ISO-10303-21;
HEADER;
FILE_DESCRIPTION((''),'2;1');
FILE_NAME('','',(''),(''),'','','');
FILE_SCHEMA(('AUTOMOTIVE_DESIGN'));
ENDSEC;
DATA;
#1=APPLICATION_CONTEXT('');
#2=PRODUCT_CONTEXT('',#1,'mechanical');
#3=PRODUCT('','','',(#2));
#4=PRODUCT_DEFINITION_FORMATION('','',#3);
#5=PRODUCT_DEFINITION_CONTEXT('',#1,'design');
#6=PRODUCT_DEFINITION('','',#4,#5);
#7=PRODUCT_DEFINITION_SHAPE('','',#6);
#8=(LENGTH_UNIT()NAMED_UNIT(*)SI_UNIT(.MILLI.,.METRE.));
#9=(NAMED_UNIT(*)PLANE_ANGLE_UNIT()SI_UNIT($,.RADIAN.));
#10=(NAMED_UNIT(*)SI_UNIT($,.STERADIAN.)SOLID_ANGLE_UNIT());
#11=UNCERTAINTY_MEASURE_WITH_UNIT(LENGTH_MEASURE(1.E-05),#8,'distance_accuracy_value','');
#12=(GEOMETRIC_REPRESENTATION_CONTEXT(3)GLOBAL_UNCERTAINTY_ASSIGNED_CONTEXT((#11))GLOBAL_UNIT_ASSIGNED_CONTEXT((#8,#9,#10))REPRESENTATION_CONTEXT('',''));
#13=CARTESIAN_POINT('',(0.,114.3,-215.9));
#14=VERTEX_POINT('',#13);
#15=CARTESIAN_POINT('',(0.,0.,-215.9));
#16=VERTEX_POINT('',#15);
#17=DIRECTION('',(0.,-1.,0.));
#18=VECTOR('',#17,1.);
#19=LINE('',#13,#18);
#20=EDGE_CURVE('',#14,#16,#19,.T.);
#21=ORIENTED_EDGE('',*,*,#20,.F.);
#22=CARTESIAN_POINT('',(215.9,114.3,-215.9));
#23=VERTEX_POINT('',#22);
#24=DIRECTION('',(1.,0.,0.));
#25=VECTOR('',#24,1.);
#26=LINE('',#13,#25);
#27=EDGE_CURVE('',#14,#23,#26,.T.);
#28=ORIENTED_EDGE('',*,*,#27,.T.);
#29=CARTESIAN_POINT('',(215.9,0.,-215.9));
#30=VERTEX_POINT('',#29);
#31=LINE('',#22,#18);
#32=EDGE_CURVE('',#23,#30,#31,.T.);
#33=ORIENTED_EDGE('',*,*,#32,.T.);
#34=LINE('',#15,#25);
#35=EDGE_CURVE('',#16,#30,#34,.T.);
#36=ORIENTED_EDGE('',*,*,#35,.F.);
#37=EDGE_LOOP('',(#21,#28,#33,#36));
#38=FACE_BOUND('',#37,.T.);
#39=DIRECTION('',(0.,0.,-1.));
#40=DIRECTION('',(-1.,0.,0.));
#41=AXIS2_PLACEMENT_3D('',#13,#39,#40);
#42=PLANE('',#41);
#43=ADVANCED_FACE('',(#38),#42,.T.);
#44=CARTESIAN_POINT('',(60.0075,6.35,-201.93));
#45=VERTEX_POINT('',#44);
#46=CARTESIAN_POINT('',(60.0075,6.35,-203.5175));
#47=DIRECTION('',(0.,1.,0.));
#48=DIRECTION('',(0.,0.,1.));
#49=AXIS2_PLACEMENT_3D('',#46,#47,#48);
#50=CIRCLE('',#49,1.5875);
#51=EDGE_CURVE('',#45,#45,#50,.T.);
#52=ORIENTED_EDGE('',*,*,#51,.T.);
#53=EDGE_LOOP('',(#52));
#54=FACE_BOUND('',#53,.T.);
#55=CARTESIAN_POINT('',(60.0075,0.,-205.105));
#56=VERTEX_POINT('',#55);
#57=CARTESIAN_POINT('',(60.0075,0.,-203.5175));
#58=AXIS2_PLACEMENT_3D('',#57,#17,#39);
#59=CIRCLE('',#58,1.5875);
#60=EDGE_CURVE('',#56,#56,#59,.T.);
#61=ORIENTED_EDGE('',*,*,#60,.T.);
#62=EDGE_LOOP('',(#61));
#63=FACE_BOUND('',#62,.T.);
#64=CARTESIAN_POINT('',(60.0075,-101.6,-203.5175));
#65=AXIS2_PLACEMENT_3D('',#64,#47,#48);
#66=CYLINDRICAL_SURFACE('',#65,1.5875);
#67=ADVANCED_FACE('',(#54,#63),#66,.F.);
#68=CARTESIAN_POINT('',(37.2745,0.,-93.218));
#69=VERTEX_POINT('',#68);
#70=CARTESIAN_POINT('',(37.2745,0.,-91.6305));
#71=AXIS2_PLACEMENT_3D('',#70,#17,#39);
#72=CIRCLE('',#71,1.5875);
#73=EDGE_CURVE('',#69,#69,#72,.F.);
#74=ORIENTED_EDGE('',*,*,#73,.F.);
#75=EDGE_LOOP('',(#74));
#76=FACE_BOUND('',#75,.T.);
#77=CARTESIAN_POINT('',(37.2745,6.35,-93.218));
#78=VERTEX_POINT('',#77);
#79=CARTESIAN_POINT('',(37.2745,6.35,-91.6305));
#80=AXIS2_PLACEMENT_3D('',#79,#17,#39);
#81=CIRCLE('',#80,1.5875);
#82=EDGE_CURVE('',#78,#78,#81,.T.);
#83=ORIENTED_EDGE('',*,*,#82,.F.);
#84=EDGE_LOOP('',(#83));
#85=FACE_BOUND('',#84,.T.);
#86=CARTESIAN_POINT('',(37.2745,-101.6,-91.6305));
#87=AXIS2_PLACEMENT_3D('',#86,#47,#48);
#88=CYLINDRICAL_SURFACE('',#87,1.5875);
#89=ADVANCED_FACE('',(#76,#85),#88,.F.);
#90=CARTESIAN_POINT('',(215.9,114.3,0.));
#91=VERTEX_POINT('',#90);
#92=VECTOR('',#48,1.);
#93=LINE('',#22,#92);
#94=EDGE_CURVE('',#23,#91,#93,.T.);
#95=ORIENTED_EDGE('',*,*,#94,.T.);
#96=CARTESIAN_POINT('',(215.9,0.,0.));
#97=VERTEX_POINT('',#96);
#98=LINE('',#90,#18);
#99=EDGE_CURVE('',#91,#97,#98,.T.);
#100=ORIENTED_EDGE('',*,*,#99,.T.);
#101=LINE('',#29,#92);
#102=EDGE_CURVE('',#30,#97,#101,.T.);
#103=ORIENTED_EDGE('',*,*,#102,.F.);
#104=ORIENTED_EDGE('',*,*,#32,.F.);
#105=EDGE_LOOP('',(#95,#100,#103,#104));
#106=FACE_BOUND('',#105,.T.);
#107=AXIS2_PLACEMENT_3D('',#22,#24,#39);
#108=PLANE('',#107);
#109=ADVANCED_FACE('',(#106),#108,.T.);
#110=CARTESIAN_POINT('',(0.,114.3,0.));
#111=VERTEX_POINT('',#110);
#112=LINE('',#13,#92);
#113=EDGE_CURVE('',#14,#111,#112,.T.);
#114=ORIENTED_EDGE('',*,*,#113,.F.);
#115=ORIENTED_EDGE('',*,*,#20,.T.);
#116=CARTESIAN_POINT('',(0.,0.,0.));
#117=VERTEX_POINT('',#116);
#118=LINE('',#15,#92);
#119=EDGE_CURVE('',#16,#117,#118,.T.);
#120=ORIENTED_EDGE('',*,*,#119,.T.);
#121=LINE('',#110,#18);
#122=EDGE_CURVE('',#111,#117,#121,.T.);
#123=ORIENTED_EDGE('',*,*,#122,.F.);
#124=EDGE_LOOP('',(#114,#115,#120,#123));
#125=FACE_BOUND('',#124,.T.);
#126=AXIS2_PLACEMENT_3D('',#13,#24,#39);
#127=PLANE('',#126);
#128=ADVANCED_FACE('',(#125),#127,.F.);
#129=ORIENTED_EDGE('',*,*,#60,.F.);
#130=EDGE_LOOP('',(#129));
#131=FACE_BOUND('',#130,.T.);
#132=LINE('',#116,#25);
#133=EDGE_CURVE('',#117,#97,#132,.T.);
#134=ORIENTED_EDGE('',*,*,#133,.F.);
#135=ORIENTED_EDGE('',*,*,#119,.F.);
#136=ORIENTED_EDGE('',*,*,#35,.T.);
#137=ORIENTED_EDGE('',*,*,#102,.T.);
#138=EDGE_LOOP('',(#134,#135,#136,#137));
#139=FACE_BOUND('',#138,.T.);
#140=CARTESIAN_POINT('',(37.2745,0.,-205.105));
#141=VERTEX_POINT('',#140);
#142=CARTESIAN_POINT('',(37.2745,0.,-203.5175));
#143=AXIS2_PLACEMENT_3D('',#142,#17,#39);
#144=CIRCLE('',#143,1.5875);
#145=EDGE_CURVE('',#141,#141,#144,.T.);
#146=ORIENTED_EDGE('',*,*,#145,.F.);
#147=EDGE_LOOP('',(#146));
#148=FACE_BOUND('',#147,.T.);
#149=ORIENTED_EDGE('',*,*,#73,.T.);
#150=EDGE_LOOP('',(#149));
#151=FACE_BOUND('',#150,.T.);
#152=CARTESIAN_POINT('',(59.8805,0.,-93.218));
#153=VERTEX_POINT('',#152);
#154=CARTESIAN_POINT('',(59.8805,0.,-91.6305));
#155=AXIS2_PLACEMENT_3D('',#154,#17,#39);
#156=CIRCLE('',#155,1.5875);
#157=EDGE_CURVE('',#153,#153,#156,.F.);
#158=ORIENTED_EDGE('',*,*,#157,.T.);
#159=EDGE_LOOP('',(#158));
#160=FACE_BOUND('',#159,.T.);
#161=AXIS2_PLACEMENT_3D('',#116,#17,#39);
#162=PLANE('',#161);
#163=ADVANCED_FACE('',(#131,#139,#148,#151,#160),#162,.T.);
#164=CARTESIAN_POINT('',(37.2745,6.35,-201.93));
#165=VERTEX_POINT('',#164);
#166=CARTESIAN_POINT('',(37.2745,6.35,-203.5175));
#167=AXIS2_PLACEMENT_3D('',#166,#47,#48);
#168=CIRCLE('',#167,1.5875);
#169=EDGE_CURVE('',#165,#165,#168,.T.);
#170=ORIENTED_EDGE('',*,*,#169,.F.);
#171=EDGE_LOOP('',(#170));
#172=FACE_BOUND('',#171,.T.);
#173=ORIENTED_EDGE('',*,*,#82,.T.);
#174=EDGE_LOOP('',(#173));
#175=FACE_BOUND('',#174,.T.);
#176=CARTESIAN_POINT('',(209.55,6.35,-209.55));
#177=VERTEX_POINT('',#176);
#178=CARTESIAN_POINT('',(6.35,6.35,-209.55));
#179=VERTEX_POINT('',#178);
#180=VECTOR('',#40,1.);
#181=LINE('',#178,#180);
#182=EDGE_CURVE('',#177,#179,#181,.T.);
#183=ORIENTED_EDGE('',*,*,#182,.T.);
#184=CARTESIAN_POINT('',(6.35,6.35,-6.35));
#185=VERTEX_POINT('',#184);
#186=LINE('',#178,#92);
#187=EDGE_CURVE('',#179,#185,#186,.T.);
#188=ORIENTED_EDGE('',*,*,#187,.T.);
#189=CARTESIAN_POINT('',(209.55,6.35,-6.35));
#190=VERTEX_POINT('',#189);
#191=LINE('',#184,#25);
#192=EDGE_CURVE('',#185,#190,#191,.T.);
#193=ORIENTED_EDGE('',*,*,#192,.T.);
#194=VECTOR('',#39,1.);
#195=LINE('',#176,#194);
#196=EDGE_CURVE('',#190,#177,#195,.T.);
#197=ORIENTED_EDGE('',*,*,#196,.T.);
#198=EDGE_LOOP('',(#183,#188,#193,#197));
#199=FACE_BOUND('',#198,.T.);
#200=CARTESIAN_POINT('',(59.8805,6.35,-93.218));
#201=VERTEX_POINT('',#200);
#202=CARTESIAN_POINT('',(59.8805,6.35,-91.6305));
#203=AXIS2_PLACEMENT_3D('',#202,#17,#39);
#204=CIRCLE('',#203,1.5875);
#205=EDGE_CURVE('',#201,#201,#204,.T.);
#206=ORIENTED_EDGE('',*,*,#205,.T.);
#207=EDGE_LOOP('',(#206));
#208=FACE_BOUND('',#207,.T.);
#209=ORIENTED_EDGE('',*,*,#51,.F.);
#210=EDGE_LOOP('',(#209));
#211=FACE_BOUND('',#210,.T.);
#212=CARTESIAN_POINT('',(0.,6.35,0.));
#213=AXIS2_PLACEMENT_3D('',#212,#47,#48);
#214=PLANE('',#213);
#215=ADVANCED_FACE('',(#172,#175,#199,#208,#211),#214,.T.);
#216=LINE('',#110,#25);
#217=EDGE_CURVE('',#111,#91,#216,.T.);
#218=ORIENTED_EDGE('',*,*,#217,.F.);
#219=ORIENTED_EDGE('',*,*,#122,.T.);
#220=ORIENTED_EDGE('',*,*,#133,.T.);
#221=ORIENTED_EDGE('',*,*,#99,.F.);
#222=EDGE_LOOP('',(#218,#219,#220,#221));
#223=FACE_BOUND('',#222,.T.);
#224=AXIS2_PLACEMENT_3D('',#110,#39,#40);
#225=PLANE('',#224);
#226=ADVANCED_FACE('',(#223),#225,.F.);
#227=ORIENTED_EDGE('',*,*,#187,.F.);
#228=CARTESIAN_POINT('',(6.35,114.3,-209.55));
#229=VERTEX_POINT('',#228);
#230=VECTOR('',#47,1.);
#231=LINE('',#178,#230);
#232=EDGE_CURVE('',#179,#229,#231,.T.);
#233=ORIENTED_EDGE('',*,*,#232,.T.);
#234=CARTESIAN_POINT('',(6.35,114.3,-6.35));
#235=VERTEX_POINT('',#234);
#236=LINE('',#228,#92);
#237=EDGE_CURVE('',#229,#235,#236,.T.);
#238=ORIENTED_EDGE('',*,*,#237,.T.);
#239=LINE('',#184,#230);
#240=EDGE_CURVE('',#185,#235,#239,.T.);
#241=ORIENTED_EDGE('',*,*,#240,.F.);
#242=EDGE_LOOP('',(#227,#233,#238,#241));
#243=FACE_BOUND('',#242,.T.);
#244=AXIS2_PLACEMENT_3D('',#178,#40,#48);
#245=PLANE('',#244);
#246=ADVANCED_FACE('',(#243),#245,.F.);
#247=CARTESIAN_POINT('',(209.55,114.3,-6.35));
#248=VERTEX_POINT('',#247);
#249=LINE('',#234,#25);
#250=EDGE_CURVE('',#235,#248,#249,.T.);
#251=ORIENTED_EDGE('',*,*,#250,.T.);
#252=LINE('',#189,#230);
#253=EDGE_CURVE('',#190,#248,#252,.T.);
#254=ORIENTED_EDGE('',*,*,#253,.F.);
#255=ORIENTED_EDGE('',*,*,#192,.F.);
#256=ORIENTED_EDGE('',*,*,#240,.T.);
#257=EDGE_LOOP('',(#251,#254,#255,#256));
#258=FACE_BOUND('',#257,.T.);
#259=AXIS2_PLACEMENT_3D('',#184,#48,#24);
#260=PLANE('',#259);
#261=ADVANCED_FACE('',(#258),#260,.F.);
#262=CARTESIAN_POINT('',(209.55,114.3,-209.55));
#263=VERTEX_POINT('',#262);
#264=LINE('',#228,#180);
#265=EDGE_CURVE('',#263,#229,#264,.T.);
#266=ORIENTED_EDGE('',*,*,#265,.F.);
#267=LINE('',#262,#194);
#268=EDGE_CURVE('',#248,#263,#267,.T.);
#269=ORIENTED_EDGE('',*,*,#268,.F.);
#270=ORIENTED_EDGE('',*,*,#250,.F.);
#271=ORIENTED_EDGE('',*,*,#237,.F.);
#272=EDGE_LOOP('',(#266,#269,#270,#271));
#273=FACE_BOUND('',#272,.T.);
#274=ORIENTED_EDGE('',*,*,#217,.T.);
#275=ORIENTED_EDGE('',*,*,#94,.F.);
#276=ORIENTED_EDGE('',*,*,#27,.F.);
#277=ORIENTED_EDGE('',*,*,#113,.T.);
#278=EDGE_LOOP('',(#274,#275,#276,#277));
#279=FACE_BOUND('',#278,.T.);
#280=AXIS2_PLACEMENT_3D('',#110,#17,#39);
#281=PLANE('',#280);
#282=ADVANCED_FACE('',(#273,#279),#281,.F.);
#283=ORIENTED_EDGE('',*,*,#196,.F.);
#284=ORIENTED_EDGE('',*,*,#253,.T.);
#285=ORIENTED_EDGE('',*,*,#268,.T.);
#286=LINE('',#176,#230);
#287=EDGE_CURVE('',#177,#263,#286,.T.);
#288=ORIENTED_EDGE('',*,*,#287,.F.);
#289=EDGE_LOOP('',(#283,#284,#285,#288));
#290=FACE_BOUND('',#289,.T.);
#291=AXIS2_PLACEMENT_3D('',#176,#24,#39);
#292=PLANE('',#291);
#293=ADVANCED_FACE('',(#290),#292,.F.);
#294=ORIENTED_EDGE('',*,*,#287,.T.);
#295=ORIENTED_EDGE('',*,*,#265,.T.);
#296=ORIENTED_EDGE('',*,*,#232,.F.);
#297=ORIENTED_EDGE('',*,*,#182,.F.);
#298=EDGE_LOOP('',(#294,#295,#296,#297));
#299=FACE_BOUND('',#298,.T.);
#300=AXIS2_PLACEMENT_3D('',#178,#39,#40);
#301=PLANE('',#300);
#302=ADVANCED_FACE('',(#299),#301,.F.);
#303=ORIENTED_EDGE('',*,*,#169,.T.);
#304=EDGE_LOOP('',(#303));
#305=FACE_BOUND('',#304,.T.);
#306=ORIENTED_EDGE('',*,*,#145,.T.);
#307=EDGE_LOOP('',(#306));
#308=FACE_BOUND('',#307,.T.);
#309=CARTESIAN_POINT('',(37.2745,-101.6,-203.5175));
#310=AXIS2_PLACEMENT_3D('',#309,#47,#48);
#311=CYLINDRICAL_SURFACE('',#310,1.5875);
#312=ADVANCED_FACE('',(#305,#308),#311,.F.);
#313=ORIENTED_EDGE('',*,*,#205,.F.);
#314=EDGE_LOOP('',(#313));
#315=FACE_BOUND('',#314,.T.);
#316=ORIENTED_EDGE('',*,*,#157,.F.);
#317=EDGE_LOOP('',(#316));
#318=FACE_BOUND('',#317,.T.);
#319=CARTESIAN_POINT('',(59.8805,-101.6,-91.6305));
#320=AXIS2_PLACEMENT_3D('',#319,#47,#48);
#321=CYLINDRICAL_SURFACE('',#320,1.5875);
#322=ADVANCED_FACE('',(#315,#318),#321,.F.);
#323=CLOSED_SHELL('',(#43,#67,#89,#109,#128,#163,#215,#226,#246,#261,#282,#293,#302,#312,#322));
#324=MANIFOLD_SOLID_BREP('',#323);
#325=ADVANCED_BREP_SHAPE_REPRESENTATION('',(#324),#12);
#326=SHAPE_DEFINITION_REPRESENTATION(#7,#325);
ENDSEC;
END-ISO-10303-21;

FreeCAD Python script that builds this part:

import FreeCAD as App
import Part
import Sketcher
from FreeCAD import Vector
Q = App.Units.Quantity

doc = App.newDocument("Part")
params = doc.addObject("Spreadsheet::Sheet", "Params")
for row, (alias, value) in enumerate([
    ("sketch1_width", "8.5 in"),
    ("pad1_length", "4.5 in"),
    ("sketch2_width", "8 in"),
    ("pocket1_length", "4.25 in"),
    ("sketch3_diameter", "0.125 in"),
    ("pocket2_length", "4.25 in"),
], start=1):
    params.set(f"A{row}", alias)
    params.set(f"B{row}", "=" + value)
    params.setAlias(f"B{row}", alias)

body = doc.addObject("PartDesign::Body", "Body")

# Sketch on XZ plane
sketch1 = doc.addObject("Sketcher::SketchObject", "Sketch")
body.addObject(sketch1)
sketch1.AttachmentSupport = (doc.XZ_Plane, [""])
sketch1.MapMode = "FlatFace"
sketch1.addGeometry([
    Part.LineSegment(Vector(0, -216, 0), Vector(0, 0, 0)),
    Part.LineSegment(Vector(0, 0, 0), Vector(216, 0, 0)),
    Part.LineSegment(Vector(216, 0, 0), Vector(216, -216, 0)),
    Part.LineSegment(Vector(216, -216, 0), Vector(0, -216, 0)),
], False)
sketch1.addConstraint([
    Sketcher.Constraint("Coincident", 0, 2, 1, 1),
    Sketcher.Constraint("Coincident", 1, 2, 2, 1),
    Sketcher.Constraint("Coincident", 2, 2, 3, 1),
    Sketcher.Constraint("Coincident", 3, 2, 0, 1),
    Sketcher.Constraint("Vertical", 0),
    Sketcher.Constraint("Horizontal", 1),
    Sketcher.Constraint("Vertical", 2),
    Sketcher.Constraint("Horizontal", 3),
    Sketcher.Constraint("Coincident", 0, 2, -1, 1),
    Sketcher.Constraint("Equal", 3, 0),
    Sketcher.Constraint("DistanceX", 1, 1, 1, 2, Q("8.5 in")),
])
sketch1.setExpression("Constraints[10]", "Params.sketch1_width")
pad1 = doc.addObject("PartDesign::Pad", "Pad")
body.addObject(pad1)
pad1.Profile = sketch1
pad1.setExpression("Length", "Params.pad1_length")
pad1.Reversed = True

# Sketch on XZ plane
sketch2 = doc.addObject("Sketcher::SketchObject", "Sketch001")
body.addObject(sketch2)
sketch2.AttachmentSupport = (doc.XZ_Plane, [""])
sketch2.MapMode = "FlatFace"
sketch2.AttachmentOffset = App.Placement(Vector(0, 0, -4.5 * 25.4), App.Rotation())
sketch2.addGeometry([
    Part.LineSegment(Vector(6, -210, 0), Vector(6, -6, 0)),
    Part.LineSegment(Vector(6, -6, 0), Vector(210, -6, 0)),
    Part.LineSegment(Vector(210, -6, 0), Vector(210, -210, 0)),
    Part.LineSegment(Vector(210, -210, 0), Vector(6, -210, 0)),
], False)
sketch2.addConstraint([
    Sketcher.Constraint("Coincident", 0, 2, 1, 1),
    Sketcher.Constraint("Coincident", 1, 2, 2, 1),
    Sketcher.Constraint("Coincident", 2, 2, 3, 1),
    Sketcher.Constraint("Coincident", 3, 2, 0, 1),
    Sketcher.Constraint("Vertical", 0),
    Sketcher.Constraint("Horizontal", 1),
    Sketcher.Constraint("Vertical", 2),
    Sketcher.Constraint("Horizontal", 3),
    Sketcher.Constraint("Equal", 3, 0),
    Sketcher.Constraint("DistanceX", 1, 1, 1, 2, Q("8 in")),
    Sketcher.Constraint("DistanceX", -1, 1, 0, 2, Q("0.25 in")),
    Sketcher.Constraint("DistanceY", 0, 2, -1, 1, Q("0.25 in")),
])
sketch2.setExpression("Constraints[9]", "Params.sketch2_width")
pocket1 = doc.addObject("PartDesign::Pocket", "Pocket")
body.addObject(pocket1)
pocket1.Profile = sketch2
pocket1.setExpression("Length", "Params.pocket1_length")
pocket1.Reversed = True

# Sketch on XZ plane
sketch3 = doc.addObject("Sketcher::SketchObject", "Sketch002")
body.addObject(sketch3)
sketch3.AttachmentSupport = (doc.XZ_Plane, [""])
sketch3.MapMode = "FlatFace"
sketch3.AttachmentOffset = App.Placement(Vector(0, 0, -0.25 * 25.4), App.Rotation())
sketch3.addGeometry([
    Part.Circle(Vector(37.3, -203.5, 0), Vector(0, 0, 1), 1.6),
    Part.Circle(Vector(60, -203.5, 0), Vector(0, 0, 1), 1.6),
    Part.Circle(Vector(59.9, -91.6, 0), Vector(0, 0, 1), 1.6),
    Part.Circle(Vector(37.3, -91.6, 0), Vector(0, 0, 1), 1.6),
], False)
sketch3.addConstraint([
    Sketcher.Constraint("Equal", 0, 1),
    Sketcher.Constraint("Equal", 1, 2),
    Sketcher.Constraint("Equal", 2, 3),
    Sketcher.Constraint("Horizontal", 0, 3, 1, 3),
    Sketcher.Constraint("Horizontal", 2, 3, 3, 3),
    Sketcher.Constraint("Vertical", 0, 3, 3, 3),
    Sketcher.Constraint("Diameter", 0, Q("0.125 in")),
    Sketcher.Constraint("DistanceX", 0, 3, 2, 3, Q("0.89 in")),
    Sketcher.Constraint("DistanceX", 0, 3, 1, 3, Q("0.895 in")),
    Sketcher.Constraint("DistanceY", 1, 3, 2, 3, Q("4.405 in")),
    Sketcher.Constraint("DistanceX", -1, 1, 0, 3, Q("1.4675 in")),
    Sketcher.Constraint("DistanceY", 0, 3, -1, 1, Q("8.0125 in")),
])
sketch3.setExpression("Constraints[6]", "Params.sketch3_diameter")
pocket2 = doc.addObject("PartDesign::Pocket", "Pocket001")
body.addObject(pocket2)
pocket2.Profile = sketch3
pocket2.setExpression("Length", "Params.pocket2_length")
pocket2.Reversed = True

doc.recompute()
